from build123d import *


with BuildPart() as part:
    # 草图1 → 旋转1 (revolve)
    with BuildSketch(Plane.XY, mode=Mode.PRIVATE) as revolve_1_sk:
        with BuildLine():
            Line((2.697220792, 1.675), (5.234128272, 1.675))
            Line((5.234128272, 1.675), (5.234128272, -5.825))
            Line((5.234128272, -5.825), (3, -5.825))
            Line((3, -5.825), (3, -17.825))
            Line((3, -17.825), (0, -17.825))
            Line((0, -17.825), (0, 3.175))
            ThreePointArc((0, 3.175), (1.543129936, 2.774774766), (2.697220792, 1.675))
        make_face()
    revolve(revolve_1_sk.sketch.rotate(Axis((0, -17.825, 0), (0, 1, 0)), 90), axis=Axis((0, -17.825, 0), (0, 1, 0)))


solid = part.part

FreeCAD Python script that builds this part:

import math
import FreeCAD as App
import Part
import Sketcher
from FreeCAD import Vector
Q = App.Units.Quantity

doc = App.newDocument("Part")
body = doc.addObject("PartDesign::Body", "Body")

# Sketch on XY plane
sketch1 = body.newObject("Sketcher::SketchObject", "Sketch")
sketch1.AttachmentSupport = (doc.getObject("XY_Plane"), [""])
sketch1.MapMode = "FlatFace"
sketch1.addGeometry([
    Part.LineSegment(Vector(5.2, 1.7, 0), Vector(2.7, 1.7, 0)),  # 0
    Part.ArcOfCircle(Part.Circle(Vector(0, 0, 0), Vector(0, 0, 1), 3.2), math.radians(32), math.radians(90)),  # 1
    Part.LineSegment(Vector(0, 3.2, 0), Vector(0, -17.8, 0)),  # 2
    Part.LineSegment(Vector(0, -17.8, 0), Vector(3, -17.8, 0)),  # 3
    Part.LineSegment(Vector(3, -17.8, 0), Vector(3, -5.8, 0)),  # 4
    Part.LineSegment(Vector(3, -5.8, 0), Vector(5.2, -5.8, 0)),  # 5
    Part.LineSegment(Vector(5.2, -5.8, 0), Vector(5.2, 1.7, 0)),  # 6
], False)
sketch1.addConstraint([
    Sketcher.Constraint("Coincident", 0, 2, 1, 1),
    Sketcher.Constraint("Coincident", 1, 2, 2, 1),
    Sketcher.Constraint("Coincident", 2, 2, 3, 1),
    Sketcher.Constraint("Coincident", 3, 2, 4, 1),
    Sketcher.Constraint("Coincident", 4, 2, 5, 1),
    Sketcher.Constraint("Coincident", 5, 2, 6, 1),
    Sketcher.Constraint("Coincident", 6, 2, 0, 1),
    Sketcher.Constraint("Horizontal", 0),
    Sketcher.Constraint("Vertical", 2),
    Sketcher.Constraint("Horizontal", 3),
    Sketcher.Constraint("Vertical", 4),
    Sketcher.Constraint("Horizontal", 5),
    Sketcher.Constraint("Vertical", 6),
    Sketcher.Constraint("Coincident", 1, 3, -1, 1),
    Sketcher.Constraint("PointOnObject", 1, 2, -2),
    Sketcher.Constraint("DistanceX", 3, 1, 3, 2, Q("3 mm")),
    Sketcher.Constraint("DistanceY", 2, 2, 2, 1, Q("21 mm")),
    Sketcher.Constraint("DistanceY", 4, 1, 4, 2, Q("12 mm")),
    Sketcher.Constraint("DistanceY", 6, 1, 6, 2, Q("7.5 mm")),
    Sketcher.Constraint("Radius", 1, Q("3.175 mm")),
    Sketcher.Constraint("DistanceX", 5, 1, 5, 2, Q("2.234128 mm")),
])
revolution = body.newObject("PartDesign::Revolution", "Revolution")
revolution.Profile = sketch1
revolution.ReferenceAxis = (sketch1, ["V_Axis"])
revolution.Angle = 360

doc.recompute()
